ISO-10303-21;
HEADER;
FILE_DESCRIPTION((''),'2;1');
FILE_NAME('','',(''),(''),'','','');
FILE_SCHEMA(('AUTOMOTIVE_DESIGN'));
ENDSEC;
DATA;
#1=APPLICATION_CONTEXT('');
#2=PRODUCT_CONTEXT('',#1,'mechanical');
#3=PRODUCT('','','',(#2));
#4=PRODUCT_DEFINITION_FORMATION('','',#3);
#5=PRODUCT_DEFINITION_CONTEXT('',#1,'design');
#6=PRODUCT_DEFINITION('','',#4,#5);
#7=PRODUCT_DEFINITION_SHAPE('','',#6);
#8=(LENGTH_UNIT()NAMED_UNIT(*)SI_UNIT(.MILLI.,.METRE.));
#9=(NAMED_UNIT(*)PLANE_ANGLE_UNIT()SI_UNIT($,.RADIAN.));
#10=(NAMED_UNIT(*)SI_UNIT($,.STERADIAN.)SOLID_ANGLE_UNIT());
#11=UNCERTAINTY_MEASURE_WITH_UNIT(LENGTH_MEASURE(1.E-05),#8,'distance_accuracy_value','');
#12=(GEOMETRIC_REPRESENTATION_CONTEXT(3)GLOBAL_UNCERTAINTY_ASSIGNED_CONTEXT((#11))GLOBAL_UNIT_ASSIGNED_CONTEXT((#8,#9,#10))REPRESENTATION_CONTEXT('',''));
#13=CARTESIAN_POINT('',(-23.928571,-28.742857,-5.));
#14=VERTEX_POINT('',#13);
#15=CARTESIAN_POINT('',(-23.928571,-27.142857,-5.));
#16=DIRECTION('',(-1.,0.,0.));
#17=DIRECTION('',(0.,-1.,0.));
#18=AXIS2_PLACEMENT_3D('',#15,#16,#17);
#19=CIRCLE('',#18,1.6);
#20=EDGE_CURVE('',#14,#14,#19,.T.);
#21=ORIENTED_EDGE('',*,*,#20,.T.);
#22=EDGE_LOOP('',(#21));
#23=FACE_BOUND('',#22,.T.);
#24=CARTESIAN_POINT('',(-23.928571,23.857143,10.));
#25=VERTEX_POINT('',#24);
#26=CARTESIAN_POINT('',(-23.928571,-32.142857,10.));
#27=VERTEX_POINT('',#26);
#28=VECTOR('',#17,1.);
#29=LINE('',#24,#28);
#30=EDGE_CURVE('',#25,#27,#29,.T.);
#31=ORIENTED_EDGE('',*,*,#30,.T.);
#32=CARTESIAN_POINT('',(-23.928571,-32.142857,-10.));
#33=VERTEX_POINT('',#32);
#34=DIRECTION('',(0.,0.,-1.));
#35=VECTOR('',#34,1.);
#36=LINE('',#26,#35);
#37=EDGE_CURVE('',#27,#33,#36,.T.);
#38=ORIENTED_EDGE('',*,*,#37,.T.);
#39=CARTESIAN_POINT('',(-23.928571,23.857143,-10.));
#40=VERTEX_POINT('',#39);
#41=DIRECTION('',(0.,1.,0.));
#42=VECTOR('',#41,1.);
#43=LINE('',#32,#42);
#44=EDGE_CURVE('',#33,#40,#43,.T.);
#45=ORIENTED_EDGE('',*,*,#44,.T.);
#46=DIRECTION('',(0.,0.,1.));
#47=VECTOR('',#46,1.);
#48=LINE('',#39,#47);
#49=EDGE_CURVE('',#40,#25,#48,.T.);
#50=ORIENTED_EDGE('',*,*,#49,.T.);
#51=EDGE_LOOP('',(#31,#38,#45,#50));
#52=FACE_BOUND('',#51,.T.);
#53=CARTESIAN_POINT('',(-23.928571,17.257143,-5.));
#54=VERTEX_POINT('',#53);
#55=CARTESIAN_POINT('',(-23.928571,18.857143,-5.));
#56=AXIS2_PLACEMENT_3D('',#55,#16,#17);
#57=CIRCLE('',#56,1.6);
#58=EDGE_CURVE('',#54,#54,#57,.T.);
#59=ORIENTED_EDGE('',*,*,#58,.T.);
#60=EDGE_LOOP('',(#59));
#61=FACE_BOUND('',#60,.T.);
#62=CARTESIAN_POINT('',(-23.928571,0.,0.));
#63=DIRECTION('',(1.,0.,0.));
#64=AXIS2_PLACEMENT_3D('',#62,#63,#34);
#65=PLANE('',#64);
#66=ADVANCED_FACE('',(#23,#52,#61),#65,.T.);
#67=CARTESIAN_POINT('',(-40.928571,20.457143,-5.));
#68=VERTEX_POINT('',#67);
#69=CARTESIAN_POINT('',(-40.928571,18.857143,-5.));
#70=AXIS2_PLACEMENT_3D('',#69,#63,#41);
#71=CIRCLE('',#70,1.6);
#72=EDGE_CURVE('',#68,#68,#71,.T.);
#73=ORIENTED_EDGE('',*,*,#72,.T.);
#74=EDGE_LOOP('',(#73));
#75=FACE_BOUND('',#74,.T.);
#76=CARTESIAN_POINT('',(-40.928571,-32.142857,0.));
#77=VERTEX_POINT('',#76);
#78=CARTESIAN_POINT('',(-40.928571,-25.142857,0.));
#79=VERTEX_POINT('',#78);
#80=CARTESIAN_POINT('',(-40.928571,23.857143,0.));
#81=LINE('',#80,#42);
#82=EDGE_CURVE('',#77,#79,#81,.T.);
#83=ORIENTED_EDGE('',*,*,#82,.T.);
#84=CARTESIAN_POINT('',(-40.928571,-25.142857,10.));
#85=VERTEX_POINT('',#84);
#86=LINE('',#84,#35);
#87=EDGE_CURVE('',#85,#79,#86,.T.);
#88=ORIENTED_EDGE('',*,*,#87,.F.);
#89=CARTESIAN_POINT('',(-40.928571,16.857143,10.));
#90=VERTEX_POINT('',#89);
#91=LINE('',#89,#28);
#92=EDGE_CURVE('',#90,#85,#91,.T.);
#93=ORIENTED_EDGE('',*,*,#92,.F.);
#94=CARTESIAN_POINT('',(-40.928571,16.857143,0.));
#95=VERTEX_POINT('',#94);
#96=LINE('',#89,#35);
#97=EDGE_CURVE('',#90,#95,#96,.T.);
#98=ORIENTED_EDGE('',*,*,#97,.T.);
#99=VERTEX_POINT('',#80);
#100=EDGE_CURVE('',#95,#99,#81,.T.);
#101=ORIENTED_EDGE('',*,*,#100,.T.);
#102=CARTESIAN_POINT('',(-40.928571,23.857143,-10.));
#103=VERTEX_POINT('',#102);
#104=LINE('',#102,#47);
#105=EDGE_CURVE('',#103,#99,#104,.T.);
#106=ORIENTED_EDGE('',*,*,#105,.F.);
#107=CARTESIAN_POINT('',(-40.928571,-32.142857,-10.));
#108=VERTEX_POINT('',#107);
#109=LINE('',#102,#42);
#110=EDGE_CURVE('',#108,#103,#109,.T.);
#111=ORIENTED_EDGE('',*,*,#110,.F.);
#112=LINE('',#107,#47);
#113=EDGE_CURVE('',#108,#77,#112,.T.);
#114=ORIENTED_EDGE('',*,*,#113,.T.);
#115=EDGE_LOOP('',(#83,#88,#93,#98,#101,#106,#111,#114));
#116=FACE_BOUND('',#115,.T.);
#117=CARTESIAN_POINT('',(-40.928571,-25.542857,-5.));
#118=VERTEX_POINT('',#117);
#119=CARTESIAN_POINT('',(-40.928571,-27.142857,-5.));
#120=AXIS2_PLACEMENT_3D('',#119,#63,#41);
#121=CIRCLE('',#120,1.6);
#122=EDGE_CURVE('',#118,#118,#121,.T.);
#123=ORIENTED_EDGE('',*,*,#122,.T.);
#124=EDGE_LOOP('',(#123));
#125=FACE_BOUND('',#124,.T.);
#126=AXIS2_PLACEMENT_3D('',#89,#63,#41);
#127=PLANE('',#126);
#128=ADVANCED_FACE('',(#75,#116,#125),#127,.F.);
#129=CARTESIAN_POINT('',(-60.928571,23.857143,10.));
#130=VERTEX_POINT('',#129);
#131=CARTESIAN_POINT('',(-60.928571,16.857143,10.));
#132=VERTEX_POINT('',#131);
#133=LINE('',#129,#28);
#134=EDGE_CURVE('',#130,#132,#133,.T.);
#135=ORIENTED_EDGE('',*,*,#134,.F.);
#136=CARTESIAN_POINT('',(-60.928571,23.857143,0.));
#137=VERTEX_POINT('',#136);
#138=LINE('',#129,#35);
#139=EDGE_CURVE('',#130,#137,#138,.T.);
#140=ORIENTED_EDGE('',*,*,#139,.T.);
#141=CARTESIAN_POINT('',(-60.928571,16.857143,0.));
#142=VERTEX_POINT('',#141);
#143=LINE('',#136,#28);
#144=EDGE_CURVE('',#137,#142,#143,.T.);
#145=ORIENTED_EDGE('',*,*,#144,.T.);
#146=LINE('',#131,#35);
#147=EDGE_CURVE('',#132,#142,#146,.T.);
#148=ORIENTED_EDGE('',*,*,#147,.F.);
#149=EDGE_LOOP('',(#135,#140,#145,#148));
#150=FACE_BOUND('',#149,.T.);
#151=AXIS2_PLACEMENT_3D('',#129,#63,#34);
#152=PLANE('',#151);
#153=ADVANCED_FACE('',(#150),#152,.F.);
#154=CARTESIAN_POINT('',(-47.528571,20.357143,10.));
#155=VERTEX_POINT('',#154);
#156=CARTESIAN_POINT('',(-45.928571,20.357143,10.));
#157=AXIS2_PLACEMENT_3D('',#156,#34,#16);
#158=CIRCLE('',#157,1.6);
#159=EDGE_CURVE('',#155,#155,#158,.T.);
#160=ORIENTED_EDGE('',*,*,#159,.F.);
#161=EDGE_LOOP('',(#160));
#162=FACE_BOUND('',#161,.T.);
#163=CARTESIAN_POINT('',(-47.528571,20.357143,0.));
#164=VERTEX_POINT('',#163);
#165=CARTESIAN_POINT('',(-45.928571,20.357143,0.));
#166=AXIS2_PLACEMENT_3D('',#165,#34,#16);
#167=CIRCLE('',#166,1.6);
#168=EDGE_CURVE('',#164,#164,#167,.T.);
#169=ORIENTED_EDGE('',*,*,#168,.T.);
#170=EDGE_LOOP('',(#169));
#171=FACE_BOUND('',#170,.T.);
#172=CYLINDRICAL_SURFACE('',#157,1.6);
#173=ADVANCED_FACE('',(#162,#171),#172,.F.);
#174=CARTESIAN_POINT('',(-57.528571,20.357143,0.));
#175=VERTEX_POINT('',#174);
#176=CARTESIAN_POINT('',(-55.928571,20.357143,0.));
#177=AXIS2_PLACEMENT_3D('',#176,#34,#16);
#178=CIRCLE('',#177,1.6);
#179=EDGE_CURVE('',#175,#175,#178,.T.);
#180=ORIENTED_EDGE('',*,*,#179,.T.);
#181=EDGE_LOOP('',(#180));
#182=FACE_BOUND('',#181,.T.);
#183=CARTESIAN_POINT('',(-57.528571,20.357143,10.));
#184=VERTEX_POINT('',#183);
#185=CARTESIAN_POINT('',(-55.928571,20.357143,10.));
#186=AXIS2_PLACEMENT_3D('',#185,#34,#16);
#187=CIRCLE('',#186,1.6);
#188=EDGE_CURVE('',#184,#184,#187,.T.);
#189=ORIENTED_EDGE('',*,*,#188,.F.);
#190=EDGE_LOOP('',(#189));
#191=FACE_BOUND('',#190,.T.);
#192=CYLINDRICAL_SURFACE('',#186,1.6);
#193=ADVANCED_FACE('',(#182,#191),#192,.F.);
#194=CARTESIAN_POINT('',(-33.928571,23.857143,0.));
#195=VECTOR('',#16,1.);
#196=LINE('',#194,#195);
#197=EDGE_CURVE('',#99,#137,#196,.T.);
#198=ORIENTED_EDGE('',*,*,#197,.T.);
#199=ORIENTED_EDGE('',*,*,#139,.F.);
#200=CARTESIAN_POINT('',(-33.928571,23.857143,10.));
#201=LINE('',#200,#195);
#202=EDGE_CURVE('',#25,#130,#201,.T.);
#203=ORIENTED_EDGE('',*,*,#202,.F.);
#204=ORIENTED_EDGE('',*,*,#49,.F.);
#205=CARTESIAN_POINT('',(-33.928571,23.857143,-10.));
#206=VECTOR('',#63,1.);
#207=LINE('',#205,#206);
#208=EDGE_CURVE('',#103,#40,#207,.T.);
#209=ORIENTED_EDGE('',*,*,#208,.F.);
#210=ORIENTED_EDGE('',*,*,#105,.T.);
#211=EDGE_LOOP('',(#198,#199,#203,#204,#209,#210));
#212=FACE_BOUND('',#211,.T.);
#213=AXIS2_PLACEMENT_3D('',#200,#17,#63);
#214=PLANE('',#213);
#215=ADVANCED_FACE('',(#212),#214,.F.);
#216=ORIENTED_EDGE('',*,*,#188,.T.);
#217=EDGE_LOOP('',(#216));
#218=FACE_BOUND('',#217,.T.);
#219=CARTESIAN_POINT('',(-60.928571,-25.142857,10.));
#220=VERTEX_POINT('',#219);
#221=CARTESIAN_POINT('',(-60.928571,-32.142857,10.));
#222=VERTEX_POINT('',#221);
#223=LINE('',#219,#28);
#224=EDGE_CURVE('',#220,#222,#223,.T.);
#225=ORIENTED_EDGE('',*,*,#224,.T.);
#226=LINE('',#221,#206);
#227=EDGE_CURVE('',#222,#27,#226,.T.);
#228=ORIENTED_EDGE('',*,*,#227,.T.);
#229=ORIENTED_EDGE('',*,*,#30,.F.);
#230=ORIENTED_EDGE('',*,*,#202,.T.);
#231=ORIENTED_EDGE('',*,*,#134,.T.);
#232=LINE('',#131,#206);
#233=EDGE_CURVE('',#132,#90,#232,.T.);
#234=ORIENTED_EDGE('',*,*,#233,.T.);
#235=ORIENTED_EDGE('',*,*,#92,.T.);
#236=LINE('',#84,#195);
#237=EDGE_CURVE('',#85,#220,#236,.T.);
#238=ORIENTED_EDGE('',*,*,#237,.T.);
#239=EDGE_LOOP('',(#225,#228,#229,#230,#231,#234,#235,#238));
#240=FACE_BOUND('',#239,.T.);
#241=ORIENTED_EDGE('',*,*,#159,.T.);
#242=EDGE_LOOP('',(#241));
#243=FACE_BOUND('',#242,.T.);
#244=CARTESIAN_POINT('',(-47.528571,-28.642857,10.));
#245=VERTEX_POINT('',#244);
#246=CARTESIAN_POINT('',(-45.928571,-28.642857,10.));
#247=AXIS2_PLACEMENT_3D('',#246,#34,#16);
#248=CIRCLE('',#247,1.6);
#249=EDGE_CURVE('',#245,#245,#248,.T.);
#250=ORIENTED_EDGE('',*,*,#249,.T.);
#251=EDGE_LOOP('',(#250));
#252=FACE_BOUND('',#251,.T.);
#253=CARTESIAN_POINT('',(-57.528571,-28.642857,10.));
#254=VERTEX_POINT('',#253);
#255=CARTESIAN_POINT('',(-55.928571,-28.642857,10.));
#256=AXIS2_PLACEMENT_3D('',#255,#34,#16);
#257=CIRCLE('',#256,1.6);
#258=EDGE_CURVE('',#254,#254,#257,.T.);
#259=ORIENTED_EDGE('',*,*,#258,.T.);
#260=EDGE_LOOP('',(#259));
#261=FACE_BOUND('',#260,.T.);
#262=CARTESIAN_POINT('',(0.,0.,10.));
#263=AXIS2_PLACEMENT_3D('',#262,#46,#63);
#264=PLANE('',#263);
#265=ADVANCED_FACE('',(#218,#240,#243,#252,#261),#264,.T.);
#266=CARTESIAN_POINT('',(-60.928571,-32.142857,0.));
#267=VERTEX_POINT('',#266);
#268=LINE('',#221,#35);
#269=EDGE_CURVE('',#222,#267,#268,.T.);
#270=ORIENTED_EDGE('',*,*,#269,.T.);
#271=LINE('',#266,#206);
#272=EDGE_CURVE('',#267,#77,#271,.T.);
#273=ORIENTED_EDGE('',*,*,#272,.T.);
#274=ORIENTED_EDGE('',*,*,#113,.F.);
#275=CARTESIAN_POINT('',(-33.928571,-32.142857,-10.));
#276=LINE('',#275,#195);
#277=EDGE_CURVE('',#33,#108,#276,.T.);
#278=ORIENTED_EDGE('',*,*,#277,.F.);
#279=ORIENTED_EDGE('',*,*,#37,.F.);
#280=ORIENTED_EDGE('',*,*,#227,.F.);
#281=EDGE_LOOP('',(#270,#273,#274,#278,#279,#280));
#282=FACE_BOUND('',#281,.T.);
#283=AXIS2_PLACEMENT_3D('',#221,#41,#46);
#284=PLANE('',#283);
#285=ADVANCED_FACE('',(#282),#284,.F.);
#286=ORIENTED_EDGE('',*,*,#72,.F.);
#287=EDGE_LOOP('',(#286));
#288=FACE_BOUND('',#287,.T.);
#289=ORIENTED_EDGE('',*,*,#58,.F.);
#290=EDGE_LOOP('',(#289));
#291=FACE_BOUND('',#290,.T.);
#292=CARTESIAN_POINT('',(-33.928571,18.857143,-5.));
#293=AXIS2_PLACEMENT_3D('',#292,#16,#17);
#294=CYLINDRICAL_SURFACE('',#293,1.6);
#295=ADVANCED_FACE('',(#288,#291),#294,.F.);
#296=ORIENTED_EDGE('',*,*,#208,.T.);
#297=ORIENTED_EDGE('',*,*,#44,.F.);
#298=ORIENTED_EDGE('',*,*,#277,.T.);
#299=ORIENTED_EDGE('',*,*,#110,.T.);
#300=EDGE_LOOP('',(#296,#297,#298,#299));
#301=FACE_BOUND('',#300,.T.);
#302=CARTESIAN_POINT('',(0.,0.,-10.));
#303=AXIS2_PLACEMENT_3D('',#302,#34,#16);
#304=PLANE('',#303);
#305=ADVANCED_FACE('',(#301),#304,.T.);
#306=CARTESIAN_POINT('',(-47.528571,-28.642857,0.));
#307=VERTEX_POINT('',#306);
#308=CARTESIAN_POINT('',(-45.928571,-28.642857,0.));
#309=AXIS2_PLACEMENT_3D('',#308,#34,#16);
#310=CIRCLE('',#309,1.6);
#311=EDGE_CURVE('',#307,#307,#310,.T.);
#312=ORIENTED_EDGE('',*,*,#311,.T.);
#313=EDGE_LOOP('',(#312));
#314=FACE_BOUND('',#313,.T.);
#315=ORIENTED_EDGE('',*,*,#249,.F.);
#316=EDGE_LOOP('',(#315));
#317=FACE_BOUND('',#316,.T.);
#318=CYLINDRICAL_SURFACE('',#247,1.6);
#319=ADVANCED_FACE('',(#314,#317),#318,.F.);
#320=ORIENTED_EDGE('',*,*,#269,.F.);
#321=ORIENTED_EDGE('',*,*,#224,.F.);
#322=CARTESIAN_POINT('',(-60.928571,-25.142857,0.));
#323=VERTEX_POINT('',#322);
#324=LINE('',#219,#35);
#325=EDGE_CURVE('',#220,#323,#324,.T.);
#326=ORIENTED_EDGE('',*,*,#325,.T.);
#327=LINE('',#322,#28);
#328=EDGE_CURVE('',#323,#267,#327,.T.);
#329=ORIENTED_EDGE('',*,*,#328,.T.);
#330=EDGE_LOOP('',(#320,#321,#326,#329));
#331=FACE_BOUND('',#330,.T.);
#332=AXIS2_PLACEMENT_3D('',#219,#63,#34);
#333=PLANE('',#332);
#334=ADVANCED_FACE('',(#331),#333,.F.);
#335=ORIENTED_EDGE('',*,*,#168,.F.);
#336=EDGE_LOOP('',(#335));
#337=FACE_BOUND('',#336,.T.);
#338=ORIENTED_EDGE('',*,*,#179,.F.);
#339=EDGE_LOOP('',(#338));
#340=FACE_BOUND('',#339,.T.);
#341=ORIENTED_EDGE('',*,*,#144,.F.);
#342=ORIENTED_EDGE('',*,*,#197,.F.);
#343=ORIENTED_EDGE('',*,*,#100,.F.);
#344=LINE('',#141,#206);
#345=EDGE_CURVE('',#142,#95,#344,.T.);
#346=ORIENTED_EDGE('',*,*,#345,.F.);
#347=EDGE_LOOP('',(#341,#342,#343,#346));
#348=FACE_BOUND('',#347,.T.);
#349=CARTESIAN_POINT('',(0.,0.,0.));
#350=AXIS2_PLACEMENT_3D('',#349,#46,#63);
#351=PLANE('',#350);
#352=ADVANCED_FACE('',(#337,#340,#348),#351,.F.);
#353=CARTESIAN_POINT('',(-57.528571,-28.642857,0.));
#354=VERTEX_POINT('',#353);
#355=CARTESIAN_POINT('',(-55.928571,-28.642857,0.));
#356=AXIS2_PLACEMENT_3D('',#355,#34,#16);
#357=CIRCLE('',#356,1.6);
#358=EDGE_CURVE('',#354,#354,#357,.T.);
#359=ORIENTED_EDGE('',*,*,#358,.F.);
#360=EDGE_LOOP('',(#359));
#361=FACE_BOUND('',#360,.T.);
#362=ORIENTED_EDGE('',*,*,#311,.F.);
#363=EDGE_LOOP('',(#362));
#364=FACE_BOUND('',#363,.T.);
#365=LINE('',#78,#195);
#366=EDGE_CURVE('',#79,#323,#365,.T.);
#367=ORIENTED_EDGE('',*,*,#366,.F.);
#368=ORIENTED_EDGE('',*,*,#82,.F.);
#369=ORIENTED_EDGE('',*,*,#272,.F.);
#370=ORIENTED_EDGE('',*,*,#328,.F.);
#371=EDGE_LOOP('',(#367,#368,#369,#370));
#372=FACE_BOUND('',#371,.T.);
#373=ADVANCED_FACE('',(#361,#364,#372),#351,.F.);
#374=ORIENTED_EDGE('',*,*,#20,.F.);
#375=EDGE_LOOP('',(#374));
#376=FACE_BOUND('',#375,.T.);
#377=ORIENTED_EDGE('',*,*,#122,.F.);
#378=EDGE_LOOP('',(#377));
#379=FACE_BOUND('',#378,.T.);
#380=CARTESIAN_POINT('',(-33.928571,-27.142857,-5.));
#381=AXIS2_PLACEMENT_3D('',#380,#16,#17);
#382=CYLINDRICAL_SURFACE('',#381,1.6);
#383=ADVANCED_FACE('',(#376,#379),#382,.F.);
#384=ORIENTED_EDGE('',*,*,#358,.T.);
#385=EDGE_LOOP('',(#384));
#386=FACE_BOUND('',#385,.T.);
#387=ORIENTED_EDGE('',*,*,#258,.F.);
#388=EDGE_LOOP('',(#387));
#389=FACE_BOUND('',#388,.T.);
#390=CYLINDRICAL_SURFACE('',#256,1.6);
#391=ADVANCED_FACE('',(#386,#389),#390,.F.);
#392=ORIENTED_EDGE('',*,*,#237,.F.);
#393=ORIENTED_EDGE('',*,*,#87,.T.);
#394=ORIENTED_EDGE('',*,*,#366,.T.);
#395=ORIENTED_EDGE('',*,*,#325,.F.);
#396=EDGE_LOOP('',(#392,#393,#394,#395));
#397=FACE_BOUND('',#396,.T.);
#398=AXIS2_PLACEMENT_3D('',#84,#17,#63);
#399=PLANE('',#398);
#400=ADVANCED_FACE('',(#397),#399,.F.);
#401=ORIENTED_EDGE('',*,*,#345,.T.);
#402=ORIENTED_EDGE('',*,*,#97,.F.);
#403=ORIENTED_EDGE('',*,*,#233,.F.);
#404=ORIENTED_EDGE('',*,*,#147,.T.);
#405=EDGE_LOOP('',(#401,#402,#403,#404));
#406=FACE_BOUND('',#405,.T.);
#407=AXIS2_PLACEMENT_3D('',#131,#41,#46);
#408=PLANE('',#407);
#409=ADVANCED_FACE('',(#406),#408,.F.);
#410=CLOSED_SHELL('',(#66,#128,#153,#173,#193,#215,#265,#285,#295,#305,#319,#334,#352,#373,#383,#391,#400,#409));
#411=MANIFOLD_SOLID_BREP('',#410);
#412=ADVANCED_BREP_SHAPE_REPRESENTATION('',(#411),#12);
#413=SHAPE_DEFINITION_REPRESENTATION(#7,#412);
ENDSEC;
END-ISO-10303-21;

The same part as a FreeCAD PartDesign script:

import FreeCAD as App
import Part
import Sketcher
from FreeCAD import Vector


def add_polygon(sketch, points):
    """Adds a closed chain of lines whose ends are joined by coincident constraints."""
    first, n = sketch.GeometryCount, len(points)
    for a, b in zip(points, points[1:] + points[:1]):
        sketch.addGeometry(Part.LineSegment(App.Vector(*a, 0), App.Vector(*b, 0)), False)
    for i in range(n):
        sketch.addConstraint(Sketcher.Constraint("Coincident", first + i, 2, first + (i + 1) % n, 1))

doc = App.newDocument("Part")
body = doc.addObject("PartDesign::Body", "Body")

sketch1 = doc.addObject("Sketcher::SketchObject", "Sketch")
body.addObject(sketch1)
sketch1.AttachmentSupport = (doc.XY_Plane, [""])
sketch1.MapMode = "FlatFace"
add_polygon(sketch1, [(-60.928571, 23.857143), (-60.928571, 16.857143), (-40.928571, 16.857143), (-40.928571, -25.142857), (-60.928571, -25.142857), (-60.928571, -32.142857), (-33.928571, -32.142857), (-33.928571, 23.857143)])
sketch1.addConstraint(Sketcher.Constraint("Vertical", 0))
sketch1.addConstraint(Sketcher.Constraint("Horizontal", 1))
sketch1.addConstraint(Sketcher.Constraint("Vertical", 2))
sketch1.addConstraint(Sketcher.Constraint("Horizontal", 3))
sketch1.addConstraint(Sketcher.Constraint("Vertical", 4))
sketch1.addConstraint(Sketcher.Constraint("Horizontal", 5))
sketch1.addConstraint(Sketcher.Constraint("Vertical", 6))
sketch1.addConstraint(Sketcher.Constraint("Horizontal", 7))
sketch1.addConstraint(Sketcher.Constraint("Vertical", 0, 2, 3, 2))
sketch1.addConstraint(Sketcher.Constraint("Equal", 0, 4))
sketch1.addConstraint(Sketcher.Constraint("DistanceX", 1, 1, 1, 2, 20.0))
sketch1.addConstraint(Sketcher.Constraint("DistanceX", 5, 1, 5, 2, 27.0))
sketch1.addConstraint(Sketcher.Constraint("DistanceY", 0, 2, 0, 1, 7.0))
sketch1.addConstraint(Sketcher.Constraint("DistanceY", 2, 2, 2, 1, 42.0))
sketch1.addConstraint(Sketcher.Constraint("DistanceX", 0, 2, -1, 1, 60.928571))
sketch1.addConstraint(Sketcher.Constraint("DistanceY", -1, 1, 0, 2, 16.857143))
pad1 = doc.addObject("PartDesign::Pad", "Pad")
body.addObject(pad1)
pad1.Profile = sketch1
pad1.Length = 10

sketch2 = doc.addObject("Sketcher::SketchObject", "Sketch001")
body.addObject(sketch2)
sketch2.AttachmentSupport = (doc.XY_Plane, [""])
sketch2.MapMode = "FlatFace"
sketch2.addGeometry(Part.Circle(Vector(-45.928571, 20.357143, 0), Vector(0, 0, 1), 1.6), False)
sketch2.addGeometry(Part.Circle(Vector(-55.928571, 20.357143, 0), Vector(0, 0, 1), 1.6), False)
sketch2.addGeometry(Part.Circle(Vector(-45.928571, -28.642857, 0), Vector(0, 0, 1), 1.6), False)
sketch2.addGeometry(Part.Circle(Vector(-55.928571, -28.642857, 0), Vector(0, 0, 1), 1.6), False)
sketch2.addConstraint(Sketcher.Constraint("Equal", 0, 1))
sketch2.addConstraint(Sketcher.Constraint("Equal", 1, 2))
sketch2.addConstraint(Sketcher.Constraint("Equal", 2, 3))
sketch2.addConstraint(Sketcher.Constraint("Horizontal", 0, 3, 1, 3))
sketch2.addConstraint(Sketcher.Constraint("Horizontal", 2, 3, 3, 3))
sketch2.addConstraint(Sketcher.Constraint("Vertical", 0, 3, 2, 3))
sketch2.addConstraint(Sketcher.Constraint("Vertical", 1, 3, 3, 3))
sketch2.addConstraint(Sketcher.Constraint("Diameter", 0, 3.2))
sketch2.addConstraint(Sketcher.Constraint("DistanceX", 1, 3, 0, 3, 10.0))
sketch2.addConstraint(Sketcher.Constraint("DistanceY", 2, 3, 0, 3, 49.0))
sketch2.addConstraint(Sketcher.Constraint("DistanceX", 0, 3, -1, 1, 45.928571))
sketch2.addConstraint(Sketcher.Constraint("DistanceY", -1, 1, 0, 3, 20.357143))
pocket1 = doc.addObject("PartDesign::Pocket", "Pocket")
body.addObject(pocket1)
pocket1.Profile = sketch2
pocket1.Length = 10
pocket1.Reversed = True

sketch3 = doc.addObject("Sketcher::SketchObject", "Sketch002")
body.addObject(sketch3)
sketch3.AttachmentSupport = (doc.XY_Plane, [""])
sketch3.MapMode = "FlatFace"
add_polygon(sketch3, [(-33.928571, 23.857143), (-33.928571, -32.142857), (-40.928571, -32.142857), (-40.928571, 23.857143)])
sketch3.addConstraint(Sketcher.Constraint("Vertical", 0))
sketch3.addConstraint(Sketcher.Constraint("Horizontal", 1))
sketch3.addConstraint(Sketcher.Constraint("Vertical", 2))
sketch3.addConstraint(Sketcher.Constraint("Horizontal", 3))
sketch3.addConstraint(Sketcher.Constraint("DistanceX", 1, 2, 1, 1, 7.0))
sketch3.addConstraint(Sketcher.Constraint("DistanceY", 0, 2, 0, 1, 56.0))
sketch3.addConstraint(Sketcher.Constraint("DistanceX", 0, 2, -1, 1, 33.928571))
sketch3.addConstraint(Sketcher.Constraint("DistanceY", 0, 2, -1, 1, 32.142857))
pad2 = doc.addObject("PartDesign::Pad", "Pad001")
body.addObject(pad2)
pad2.Profile = sketch3
pad2.Length = 10
pad2.Reversed = True

sketch4 = doc.addObject("Sketcher::SketchObject", "Sketch003")
body.addObject(sketch4)
sketch4.AttachmentSupport = (doc.YZ_Plane, [""])
sketch4.MapMode = "FlatFace"
sketch4.AttachmentOffset = App.Placement(Vector(0, 0, -40.928571), App.Rotation())
sketch4.addGeometry(Part.Circle(Vector(18.857143, -5, 0), Vector(0, 0, 1), 1.6), False)
sketch4.addGeometry(Part.Circle(Vector(-27.142857, -5, 0), Vector(0, 0, 1), 1.6), False)
sketch4.addConstraint(Sketcher.Constraint("Equal", 0, 1))
sketch4.addConstraint(Sketcher.Constraint("Horizontal", 0, 3, 1, 3))
sketch4.addConstraint(Sketcher.Constraint("Diameter", 0, 3.2))
sketch4.addConstraint(Sketcher.Constraint("DistanceY", 0, 3, -1, 1, 5.0))
sketch4.addConstraint(Sketcher.Constraint("DistanceX", 1, 3, 0, 3, 46.0))
sketch4.addConstraint(Sketcher.Constraint("DistanceX", -1, 1, 0, 3, 18.857143))
pocket2 = doc.addObject("PartDesign::Pocket", "Pocket001")
body.addObject(pocket2)
pocket2.Profile = sketch4
pocket2.Type = "ThroughAll"
pocket2.Midplane = True

sketch5 = doc.addObject("Sketcher::SketchObject", "Sketch004")
body.addObject(sketch5)
sketch5.AttachmentSupport = (doc.YZ_Plane, [""])
sketch5.MapMode = "FlatFace"
sketch5.AttachmentOffset = App.Placement(Vector(0, 0, -33.928571), App.Rotation())
add_polygon(sketch5, [(23.857143, 10), (-32.142857, 10), (-32.142857, -10), (23.857143, -10)])
sketch5.addConstraint(Sketcher.Constraint("Horizontal", 0))
sketch5.addConstraint(Sketcher.Constraint("Vertical", 1))
sketch5.addConstraint(Sketcher.Constraint("Horizontal", 2))
sketch5.addConstraint(Sketcher.Constraint("Vertical", 3))
sketch5.addConstraint(Sketcher.Constraint("DistanceX", 0, 2, 0, 1, 56.0))
sketch5.addConstraint(Sketcher.Constraint("DistanceY", 1, 2, 1, 1, 20.0))
sketch5.addConstraint(Sketcher.Constraint("DistanceY", -1, 1, 0, 2, 10.0))
sketch5.addConstraint(Sketcher.Constraint("DistanceX", 0, 2, -1, 1, 32.142857))
pad3 = doc.addObject("PartDesign::Pad", "Pad002")
body.addObject(pad3)
pad3.Profile = sketch5
pad3.Length = 10

sketch6 = doc.addObject("Sketcher::SketchObject", "Sketch005")
body.addObject(sketch6)
sketch6.AttachmentSupport = (doc.YZ_Plane, [""])
sketch6.MapMode = "FlatFace"
sketch6.AttachmentOffset = App.Placement(Vector(0, 0, -40.928571), App.Rotation())
sketch6.addGeometry(Part.Circle(Vector(18.857143, -5, 0), Vector(0, 0, 1), 1.6), False)
sketch6.addGeometry(Part.Circle(Vector(-27.142857, -5, 0), Vector(0, 0, 1), 1.6), False)
sketch6.addConstraint(Sketcher.Constraint("Equal", 0, 1))
sketch6.addConstraint(Sketcher.Constraint("Horizontal", 0, 3, 1, 3))
sketch6.addConstraint(Sketcher.Constraint("Diameter", 0, 3.2))
sketch6.addConstraint(Sketcher.Constraint("DistanceY", 0, 3, -1, 1, 5.0))
sketch6.addConstraint(Sketcher.Constraint("DistanceX", 1, 3, 0, 3, 46.0))
sketch6.addConstraint(Sketcher.Constraint("DistanceX", -1, 1, 0, 3, 18.857143))
pocket3 = doc.addObject("PartDesign::Pocket", "Pocket002")
body.addObject(pocket3)
pocket3.Profile = sketch6
pocket3.Type = "ThroughAll"
pocket3.Reversed = True

doc.recompute()
